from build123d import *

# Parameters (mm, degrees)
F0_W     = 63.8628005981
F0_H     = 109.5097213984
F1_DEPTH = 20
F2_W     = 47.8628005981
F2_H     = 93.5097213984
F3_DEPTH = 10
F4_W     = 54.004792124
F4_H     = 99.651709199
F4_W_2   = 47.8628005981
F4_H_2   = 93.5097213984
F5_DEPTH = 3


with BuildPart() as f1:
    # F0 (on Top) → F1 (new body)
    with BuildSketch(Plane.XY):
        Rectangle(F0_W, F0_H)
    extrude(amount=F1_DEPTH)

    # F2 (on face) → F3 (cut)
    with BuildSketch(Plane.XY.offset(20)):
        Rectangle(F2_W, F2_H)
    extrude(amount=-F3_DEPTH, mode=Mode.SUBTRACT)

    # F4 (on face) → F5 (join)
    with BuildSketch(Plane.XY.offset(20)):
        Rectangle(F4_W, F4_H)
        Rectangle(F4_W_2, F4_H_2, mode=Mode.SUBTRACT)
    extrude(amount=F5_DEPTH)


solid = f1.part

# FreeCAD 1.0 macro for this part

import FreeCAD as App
import Part
import Sketcher
from FreeCAD import Vector
Q = App.Units.Quantity

doc = App.newDocument("Part")
body = doc.addObject("PartDesign::Body", "Body")

# Sketch on XY plane
sketch1 = doc.addObject("Sketcher::SketchObject", "Sketch")
body.addObject(sketch1)
sketch1.AttachmentSupport = (doc.XY_Plane, [""])
sketch1.MapMode = "FlatFace"
sketch1.addGeometry(Part.LineSegment(Vector(-32, 55, 0), Vector(-32, -55, 0)), False)
sketch1.addGeometry(Part.LineSegment(Vector(-32, -55, 0), Vector(32, -55, 0)), False)
sketch1.addGeometry(Part.LineSegment(Vector(32, -55, 0), Vector(32, 55, 0)), False)
sketch1.addGeometry(Part.LineSegment(Vector(32, 55, 0), Vector(-32, 55, 0)), False)
sketch1.addConstraint(Sketcher.Constraint("Coincident", 0, 2, 1, 1))
sketch1.addConstraint(Sketcher.Constraint("Coincident", 1, 2, 2, 1))
sketch1.addConstraint(Sketcher.Constraint("Coincident", 2, 2, 3, 1))
sketch1.addConstraint(Sketcher.Constraint("Coincident", 3, 2, 0, 1))
sketch1.addConstraint(Sketcher.Constraint("Vertical", 0))
sketch1.addConstraint(Sketcher.Constraint("Horizontal", 1))
sketch1.addConstraint(Sketcher.Constraint("Vertical", 2))
sketch1.addConstraint(Sketcher.Constraint("Horizontal", 3))
sketch1.addConstraint(Sketcher.Constraint("Symmetric", 0, 2, 2, 2, -1, 1))
sketch1.addConstraint(Sketcher.Constraint("DistanceX", 1, 1, 1, 2, Q("63.862801 mm")))
sketch1.addConstraint(Sketcher.Constraint("DistanceY", 0, 2, 0, 1, Q("109.509721 mm")))
pad1 = doc.addObject("PartDesign::Pad", "Pad")
body.addObject(pad1)
pad1.Profile = sketch1
pad1.Length = 20

# Sketch on XY plane
sketch2 = doc.addObject("Sketcher::SketchObject", "Sketch001")
body.addObject(sketch2)
sketch2.AttachmentSupport = (doc.XY_Plane, [""])
sketch2.MapMode = "FlatFace"
sketch2.AttachmentOffset = App.Placement(Vector(0, 0, 20), App.Rotation())
sketch2.addGeometry(Part.LineSegment(Vector(-24, 47, 0), Vector(-24, -47, 0)), False)
sketch2.addGeometry(Part.LineSegment(Vector(-24, -47, 0), Vector(24, -47, 0)), False)
sketch2.addGeometry(Part.LineSegment(Vector(24, -47, 0), Vector(24, 47, 0)), False)
sketch2.addGeometry(Part.LineSegment(Vector(24, 47, 0), Vector(-24, 47, 0)), False)
sketch2.addConstraint(Sketcher.Constraint("Coincident", 0, 2, 1, 1))
sketch2.addConstraint(Sketcher.Constraint("Coincident", 1, 2, 2, 1))
sketch2.addConstraint(Sketcher.Constraint("Coincident", 2, 2, 3, 1))
sketch2.addConstraint(Sketcher.Constraint("Coincident", 3, 2, 0, 1))
sketch2.addConstraint(Sketcher.Constraint("Vertical", 0))
sketch2.addConstraint(Sketcher.Constraint("Horizontal", 1))
sketch2.addConstraint(Sketcher.Constraint("Vertical", 2))
sketch2.addConstraint(Sketcher.Constraint("Horizontal", 3))
sketch2.addConstraint(Sketcher.Constraint("Symmetric", 0, 2, 2, 2, -1, 1))
sketch2.addConstraint(Sketcher.Constraint("DistanceX", 1, 1, 1, 2, Q("47.862801 mm")))
sketch2.addConstraint(Sketcher.Constraint("DistanceY", 0, 2, 0, 1, Q("93.509721 mm")))
pocket1 = doc.addObject("PartDesign::Pocket", "Pocket")
body.addObject(pocket1)
pocket1.Profile = sketch2
pocket1.Length = 10

# Sketch on XY plane
sketch3 = doc.addObject("Sketcher::SketchObject", "Sketch002")
body.addObject(sketch3)
sketch3.AttachmentSupport = (doc.XY_Plane, [""])
sketch3.MapMode = "FlatFace"
sketch3.AttachmentOffset = App.Placement(Vector(0, 0, 20), App.Rotation())
sketch3.addGeometry(Part.LineSegment(Vector(-27, 50, 0), Vector(-27, -50, 0)), False)
sketch3.addGeometry(Part.LineSegment(Vector(-27, -50, 0), Vector(27, -50, 0)), False)
sketch3.addGeometry(Part.LineSegment(Vector(27, -50, 0), Vector(27, 50, 0)), False)
sketch3.addGeometry(Part.LineSegment(Vector(27, 50, 0), Vector(-27, 50, 0)), False)
sketch3.addGeometry(Part.LineSegment(Vector(24, -47, 0), Vector(-24, -47, 0)), False)
sketch3.addGeometry(Part.LineSegment(Vector(-24, -47, 0), Vector(-24, 47, 0)), False)
sketch3.addGeometry(Part.LineSegment(Vector(-24, 47, 0), Vector(24, 47, 0)), False)
sketch3.addGeometry(Part.LineSegment(Vector(24, 47, 0), Vector(24, -47, 0)), False)
sketch3.addConstraint(Sketcher.Constraint("Coincident", 0, 2, 1, 1))
sketch3.addConstraint(Sketcher.Constraint("Coincident", 1, 2, 2, 1))
sketch3.addConstraint(Sketcher.Constraint("Coincident", 2, 2, 3, 1))
sketch3.addConstraint(Sketcher.Constraint("Coincident", 3, 2, 0, 1))
sketch3.addConstraint(Sketcher.Constraint("Coincident", 4, 2, 5, 1))
sketch3.addConstraint(Sketcher.Constraint("Coincident", 5, 2, 6, 1))
sketch3.addConstraint(Sketcher.Constraint("Coincident", 6, 2, 7, 1))
sketch3.addConstraint(Sketcher.Constraint("Coincident", 7, 2, 4, 1))
sketch3.addConstraint(Sketcher.Constraint("Vertical", 0))
sketch3.addConstraint(Sketcher.Constraint("Horizontal", 1))
sketch3.addConstraint(Sketcher.Constraint("Vertical", 2))
sketch3.addConstraint(Sketcher.Constraint("Horizontal", 3))
sketch3.addConstraint(Sketcher.Constraint("Horizontal", 4))
sketch3.addConstraint(Sketcher.Constraint("Vertical", 5))
sketch3.addConstraint(Sketcher.Constraint("Horizontal", 6))
sketch3.addConstraint(Sketcher.Constraint("Vertical", 7))
sketch3.addConstraint(Sketcher.Constraint("Symmetric", 0, 2, 2, 2, -1, 1))
sketch3.addConstraint(Sketcher.Constraint("Symmetric", 4, 2, 6, 2, -1, 1))
sketch3.addConstraint(Sketcher.Constraint("DistanceX", 4, 2, 4, 1, Q("47.862801 mm")))
sketch3.addConstraint(Sketcher.Constraint("DistanceY", 0, 2, 0, 1, Q("99.651709 mm")))
sketch3.addConstraint(Sketcher.Constraint("DistanceY", 5, 1, 5, 2, Q("93.509721 mm")))
sketch3.addConstraint(Sketcher.Constraint("DistanceX", 1, 1, 1, 2, Q("54.004792 mm")))
pad2 = doc.addObject("PartDesign::Pad", "Pad001")
body.addObject(pad2)
pad2.Profile = sketch3
pad2.Length = 3

doc.recompute()
